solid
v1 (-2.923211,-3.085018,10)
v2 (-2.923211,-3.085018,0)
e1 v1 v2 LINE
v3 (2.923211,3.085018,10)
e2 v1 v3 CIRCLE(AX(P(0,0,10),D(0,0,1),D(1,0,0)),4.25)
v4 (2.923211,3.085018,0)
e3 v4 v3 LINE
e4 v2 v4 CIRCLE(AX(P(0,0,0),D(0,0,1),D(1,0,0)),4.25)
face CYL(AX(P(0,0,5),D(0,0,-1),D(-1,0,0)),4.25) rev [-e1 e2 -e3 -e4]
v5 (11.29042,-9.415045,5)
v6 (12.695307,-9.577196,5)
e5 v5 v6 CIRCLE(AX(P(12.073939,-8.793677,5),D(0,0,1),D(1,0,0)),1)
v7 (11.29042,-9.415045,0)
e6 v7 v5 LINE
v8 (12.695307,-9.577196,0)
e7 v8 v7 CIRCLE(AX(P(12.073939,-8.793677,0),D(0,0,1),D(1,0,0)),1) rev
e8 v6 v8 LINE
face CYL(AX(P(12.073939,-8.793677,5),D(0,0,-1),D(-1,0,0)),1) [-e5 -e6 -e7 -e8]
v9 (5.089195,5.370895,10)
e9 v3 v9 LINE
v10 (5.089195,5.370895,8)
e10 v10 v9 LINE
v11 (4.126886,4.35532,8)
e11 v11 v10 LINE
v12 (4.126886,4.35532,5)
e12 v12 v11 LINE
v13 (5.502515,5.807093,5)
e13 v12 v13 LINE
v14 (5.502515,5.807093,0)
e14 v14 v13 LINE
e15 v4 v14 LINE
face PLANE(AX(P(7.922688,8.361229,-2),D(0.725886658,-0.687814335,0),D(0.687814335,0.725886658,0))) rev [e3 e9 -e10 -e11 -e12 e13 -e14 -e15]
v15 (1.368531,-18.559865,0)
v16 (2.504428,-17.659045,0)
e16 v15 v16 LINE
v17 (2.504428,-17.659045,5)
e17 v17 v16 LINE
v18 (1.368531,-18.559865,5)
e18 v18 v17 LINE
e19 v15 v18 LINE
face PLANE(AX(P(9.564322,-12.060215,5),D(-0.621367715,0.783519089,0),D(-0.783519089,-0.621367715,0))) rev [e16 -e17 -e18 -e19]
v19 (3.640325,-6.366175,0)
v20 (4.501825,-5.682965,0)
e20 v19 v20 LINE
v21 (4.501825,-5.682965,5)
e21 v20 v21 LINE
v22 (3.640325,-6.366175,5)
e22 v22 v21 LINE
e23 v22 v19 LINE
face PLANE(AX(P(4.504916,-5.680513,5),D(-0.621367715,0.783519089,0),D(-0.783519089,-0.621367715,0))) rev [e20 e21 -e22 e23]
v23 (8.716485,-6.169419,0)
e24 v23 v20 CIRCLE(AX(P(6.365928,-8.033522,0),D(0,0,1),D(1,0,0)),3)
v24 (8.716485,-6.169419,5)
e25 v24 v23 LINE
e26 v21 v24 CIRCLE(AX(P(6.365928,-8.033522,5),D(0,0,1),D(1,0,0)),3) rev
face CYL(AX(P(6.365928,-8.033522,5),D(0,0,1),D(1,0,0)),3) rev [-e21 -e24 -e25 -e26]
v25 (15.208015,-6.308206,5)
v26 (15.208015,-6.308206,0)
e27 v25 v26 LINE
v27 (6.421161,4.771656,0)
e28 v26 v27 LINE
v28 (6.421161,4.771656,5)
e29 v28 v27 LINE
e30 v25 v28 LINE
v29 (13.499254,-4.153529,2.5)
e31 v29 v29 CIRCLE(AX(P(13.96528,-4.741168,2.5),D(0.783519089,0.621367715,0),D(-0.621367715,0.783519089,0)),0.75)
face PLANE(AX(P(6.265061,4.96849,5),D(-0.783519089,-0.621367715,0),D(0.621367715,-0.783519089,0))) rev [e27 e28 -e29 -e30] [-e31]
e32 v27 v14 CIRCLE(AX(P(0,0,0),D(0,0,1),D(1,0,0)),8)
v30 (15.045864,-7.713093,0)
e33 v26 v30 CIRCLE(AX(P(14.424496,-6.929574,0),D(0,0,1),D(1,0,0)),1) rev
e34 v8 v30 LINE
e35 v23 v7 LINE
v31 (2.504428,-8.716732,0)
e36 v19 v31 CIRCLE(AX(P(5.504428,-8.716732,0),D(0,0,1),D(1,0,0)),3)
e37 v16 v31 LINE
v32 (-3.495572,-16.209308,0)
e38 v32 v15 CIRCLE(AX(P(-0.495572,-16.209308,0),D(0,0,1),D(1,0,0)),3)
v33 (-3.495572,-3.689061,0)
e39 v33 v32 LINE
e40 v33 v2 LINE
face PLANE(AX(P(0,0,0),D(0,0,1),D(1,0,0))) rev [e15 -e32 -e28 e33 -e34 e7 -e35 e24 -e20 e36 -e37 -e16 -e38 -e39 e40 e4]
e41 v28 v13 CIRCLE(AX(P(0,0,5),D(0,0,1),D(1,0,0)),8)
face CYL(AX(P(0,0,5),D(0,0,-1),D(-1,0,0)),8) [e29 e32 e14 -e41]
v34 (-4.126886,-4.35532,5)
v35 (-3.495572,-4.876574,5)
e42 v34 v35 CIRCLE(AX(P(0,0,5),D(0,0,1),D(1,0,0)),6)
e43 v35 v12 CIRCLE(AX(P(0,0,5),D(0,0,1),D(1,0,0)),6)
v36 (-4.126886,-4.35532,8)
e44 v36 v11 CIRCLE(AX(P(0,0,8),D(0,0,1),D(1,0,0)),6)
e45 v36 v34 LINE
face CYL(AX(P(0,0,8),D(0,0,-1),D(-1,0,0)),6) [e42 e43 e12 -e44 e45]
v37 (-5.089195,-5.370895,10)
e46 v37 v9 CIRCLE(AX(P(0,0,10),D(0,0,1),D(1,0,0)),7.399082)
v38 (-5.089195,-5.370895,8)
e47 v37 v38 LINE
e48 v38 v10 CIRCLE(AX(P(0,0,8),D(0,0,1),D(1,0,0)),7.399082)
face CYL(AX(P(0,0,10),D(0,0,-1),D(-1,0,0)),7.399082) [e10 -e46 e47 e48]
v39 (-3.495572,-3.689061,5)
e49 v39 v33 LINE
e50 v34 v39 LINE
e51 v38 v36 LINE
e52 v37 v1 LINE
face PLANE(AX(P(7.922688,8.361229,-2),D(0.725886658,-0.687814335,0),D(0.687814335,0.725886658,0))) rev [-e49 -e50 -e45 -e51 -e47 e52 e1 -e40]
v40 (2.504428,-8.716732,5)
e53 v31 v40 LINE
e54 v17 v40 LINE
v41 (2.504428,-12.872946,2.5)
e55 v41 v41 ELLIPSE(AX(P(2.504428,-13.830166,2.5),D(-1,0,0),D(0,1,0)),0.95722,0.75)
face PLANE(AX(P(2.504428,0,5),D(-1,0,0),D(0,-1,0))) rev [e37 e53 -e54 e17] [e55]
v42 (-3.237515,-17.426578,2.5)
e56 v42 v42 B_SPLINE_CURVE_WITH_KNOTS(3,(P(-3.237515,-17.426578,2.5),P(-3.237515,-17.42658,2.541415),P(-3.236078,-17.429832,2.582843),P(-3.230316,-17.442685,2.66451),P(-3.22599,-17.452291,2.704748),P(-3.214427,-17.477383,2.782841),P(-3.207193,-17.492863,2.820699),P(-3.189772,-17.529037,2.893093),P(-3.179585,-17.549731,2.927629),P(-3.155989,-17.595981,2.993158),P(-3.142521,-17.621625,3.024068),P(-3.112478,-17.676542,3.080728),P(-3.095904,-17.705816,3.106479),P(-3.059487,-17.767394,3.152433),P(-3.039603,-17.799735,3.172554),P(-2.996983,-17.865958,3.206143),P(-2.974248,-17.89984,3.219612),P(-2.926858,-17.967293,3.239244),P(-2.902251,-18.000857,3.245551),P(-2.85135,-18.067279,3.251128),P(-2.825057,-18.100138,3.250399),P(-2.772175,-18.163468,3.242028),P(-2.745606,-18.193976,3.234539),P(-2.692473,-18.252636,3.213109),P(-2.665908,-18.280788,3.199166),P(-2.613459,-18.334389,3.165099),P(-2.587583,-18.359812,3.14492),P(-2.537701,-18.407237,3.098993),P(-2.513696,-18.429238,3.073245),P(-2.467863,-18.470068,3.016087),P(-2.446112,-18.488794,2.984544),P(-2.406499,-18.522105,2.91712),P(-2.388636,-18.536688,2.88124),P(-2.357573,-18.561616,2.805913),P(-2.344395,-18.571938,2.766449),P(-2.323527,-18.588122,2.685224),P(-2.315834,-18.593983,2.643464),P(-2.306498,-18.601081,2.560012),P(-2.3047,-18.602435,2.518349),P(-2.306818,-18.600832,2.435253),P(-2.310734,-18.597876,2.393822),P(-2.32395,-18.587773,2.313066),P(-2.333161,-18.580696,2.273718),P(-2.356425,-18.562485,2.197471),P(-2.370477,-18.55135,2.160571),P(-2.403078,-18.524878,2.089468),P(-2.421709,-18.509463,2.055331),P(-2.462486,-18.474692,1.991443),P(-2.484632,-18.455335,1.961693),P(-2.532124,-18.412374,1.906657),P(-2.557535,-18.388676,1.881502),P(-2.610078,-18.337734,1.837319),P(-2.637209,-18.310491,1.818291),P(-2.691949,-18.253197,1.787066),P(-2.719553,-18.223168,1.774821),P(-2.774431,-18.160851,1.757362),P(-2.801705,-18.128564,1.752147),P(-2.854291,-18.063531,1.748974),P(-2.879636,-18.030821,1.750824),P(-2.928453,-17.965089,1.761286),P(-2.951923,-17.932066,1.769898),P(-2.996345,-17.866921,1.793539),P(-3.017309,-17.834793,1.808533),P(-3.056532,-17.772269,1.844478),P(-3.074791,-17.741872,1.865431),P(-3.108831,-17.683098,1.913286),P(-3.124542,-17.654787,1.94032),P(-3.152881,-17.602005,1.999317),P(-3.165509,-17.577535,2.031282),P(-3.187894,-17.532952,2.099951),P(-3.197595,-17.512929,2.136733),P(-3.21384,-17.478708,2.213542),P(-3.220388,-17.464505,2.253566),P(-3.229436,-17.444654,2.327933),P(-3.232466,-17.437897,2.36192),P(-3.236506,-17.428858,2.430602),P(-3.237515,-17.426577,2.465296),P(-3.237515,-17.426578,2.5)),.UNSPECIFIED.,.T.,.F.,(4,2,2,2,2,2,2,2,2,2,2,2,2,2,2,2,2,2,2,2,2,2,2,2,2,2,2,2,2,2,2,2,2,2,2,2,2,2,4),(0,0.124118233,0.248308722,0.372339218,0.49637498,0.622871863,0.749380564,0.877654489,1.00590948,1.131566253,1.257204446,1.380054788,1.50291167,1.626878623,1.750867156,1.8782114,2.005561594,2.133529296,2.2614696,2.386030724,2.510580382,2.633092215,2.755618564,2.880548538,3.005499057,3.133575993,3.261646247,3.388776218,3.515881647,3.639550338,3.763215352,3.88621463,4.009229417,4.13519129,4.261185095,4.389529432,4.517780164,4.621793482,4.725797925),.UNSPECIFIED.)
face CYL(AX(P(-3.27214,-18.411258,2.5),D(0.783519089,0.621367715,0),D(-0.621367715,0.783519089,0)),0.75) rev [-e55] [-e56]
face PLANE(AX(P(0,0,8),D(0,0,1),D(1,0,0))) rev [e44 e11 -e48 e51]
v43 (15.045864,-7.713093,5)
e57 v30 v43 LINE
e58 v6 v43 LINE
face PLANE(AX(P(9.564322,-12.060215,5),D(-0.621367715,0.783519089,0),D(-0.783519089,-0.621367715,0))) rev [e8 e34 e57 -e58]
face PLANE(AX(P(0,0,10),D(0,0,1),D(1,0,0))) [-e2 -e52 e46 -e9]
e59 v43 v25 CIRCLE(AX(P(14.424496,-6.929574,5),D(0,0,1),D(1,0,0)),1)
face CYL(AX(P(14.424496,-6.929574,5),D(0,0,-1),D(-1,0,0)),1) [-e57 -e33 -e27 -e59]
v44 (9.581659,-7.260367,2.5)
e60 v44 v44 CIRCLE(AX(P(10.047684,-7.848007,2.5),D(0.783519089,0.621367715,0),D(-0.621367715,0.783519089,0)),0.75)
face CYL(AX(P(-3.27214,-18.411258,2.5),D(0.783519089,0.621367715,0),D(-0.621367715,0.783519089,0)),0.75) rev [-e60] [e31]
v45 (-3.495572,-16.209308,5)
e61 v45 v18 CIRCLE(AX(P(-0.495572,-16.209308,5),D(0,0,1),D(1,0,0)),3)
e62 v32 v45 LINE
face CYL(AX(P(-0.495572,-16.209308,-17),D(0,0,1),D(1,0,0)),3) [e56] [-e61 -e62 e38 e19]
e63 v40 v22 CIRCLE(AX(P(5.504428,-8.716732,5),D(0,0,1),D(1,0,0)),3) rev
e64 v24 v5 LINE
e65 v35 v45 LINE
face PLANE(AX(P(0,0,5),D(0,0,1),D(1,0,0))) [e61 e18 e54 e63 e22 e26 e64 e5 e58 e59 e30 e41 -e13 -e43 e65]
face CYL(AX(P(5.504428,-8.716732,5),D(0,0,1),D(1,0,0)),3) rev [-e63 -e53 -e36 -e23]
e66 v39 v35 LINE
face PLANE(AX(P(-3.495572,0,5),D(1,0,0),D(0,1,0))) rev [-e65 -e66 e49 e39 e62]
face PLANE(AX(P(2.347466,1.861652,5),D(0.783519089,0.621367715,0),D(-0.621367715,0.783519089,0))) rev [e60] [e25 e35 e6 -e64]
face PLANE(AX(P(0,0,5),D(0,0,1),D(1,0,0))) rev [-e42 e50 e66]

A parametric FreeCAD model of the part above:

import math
import FreeCAD as App
import Part
import Sketcher


def edges_at(feature, points):
    """Names of the edges that pass closest to the given points."""
    edges = feature.Shape.Edges
    near = lambda p: min(range(len(edges)), key=lambda i: edges[i].distToShape(Part.Vertex(*p))[0])
    return sorted({f"Edge{near(p) + 1}" for p in points})


def add_polygon(sketch, points):
    """Adds a closed chain of lines whose ends are joined by coincident constraints."""
    first, n = sketch.GeometryCount, len(points)
    for a, b in zip(points, points[1:] + points[:1]):
        sketch.addGeometry(Part.LineSegment(App.Vector(*a, 0), App.Vector(*b, 0)), False)
    for i in range(n):
        sketch.addConstraint(Sketcher.Constraint("Coincident", first + i, 2, first + (i + 1) % n, 1))

doc = App.newDocument("Part")
body = doc.addObject("PartDesign::Body", "Body")

# Sketch on XY plane
sketch1 = body.newObject("Sketcher::SketchObject", "Sketch")
sketch1.AttachmentSupport = (doc.getObject("XY_Plane"), [""])
sketch1.MapMode = "FlatFace"
sketch1.addGeometry(Part.ArcOfCircle(Part.Circle(App.Vector(0, 0, 0), App.Vector(0, 0, 1), 4.2), math.radians(-145), math.radians(0)), False)
sketch1.addGeometry(Part.LineSegment(App.Vector(-3.5, -2.4, 0), App.Vector(-3.5, -22.4, 0)), False)
sketch1.addGeometry(Part.LineSegment(App.Vector(-3.5, -22.4, 0), App.Vector(2.5, -17.7, 0)), False)
sketch1.addGeometry(Part.LineSegment(App.Vector(2.5, -17.7, 0), App.Vector(2.5, -7.3, 0)), False)
sketch1.addGeometry(Part.LineSegment(App.Vector(2.5, -7.3, 0), App.Vector(6.9, -3.8, 0)), False)
sketch1.addGeometry(Part.LineSegment(App.Vector(6.9, -3.8, 0), App.Vector(11.9, -10.2, 0)), False)
sketch1.addGeometry(Part.LineSegment(App.Vector(11.9, -10.2, 0), App.Vector(15.8, -7.1, 0)), False)
sketch1.addGeometry(Part.LineSegment(App.Vector(15.8, -7.1, 0), App.Vector(6.4, 4.8, 0)), False)
sketch1.addGeometry(Part.ArcOfCircle(Part.Circle(App.Vector(0, 0, 0), App.Vector(0, 0, 1), 8), math.radians(36.62), math.radians(51.55)), False)
sketch1.addGeometry(Part.LineSegment(App.Vector(5, 6.3, 0), App.Vector(1.7, 3.9, 0)), False)
sketch1.addGeometry(Part.ArcOfCircle(Part.Circle(App.Vector(0, 0, 0), App.Vector(0, 0, 1), 4.2), math.radians(0), math.radians(67)), False)
sketch1.addConstraint(Sketcher.Constraint("Coincident", 0, 1, 1, 1))
sketch1.addConstraint(Sketcher.Constraint("Coincident", 1, 2, 2, 1))
sketch1.addConstraint(Sketcher.Constraint("Coincident", 2, 2, 3, 1))
sketch1.addConstraint(Sketcher.Constraint("Coincident", 3, 2, 4, 1))
sketch1.addConstraint(Sketcher.Constraint("Coincident", 4, 2, 5, 1))
sketch1.addConstraint(Sketcher.Constraint("Coincident", 5, 2, 6, 1))
sketch1.addConstraint(Sketcher.Constraint("Coincident", 6, 2, 7, 1))
sketch1.addConstraint(Sketcher.Constraint("Coincident", 7, 2, 8, 1))
sketch1.addConstraint(Sketcher.Constraint("Coincident", 8, 2, 9, 1))
sketch1.addConstraint(Sketcher.Constraint("Coincident", 9, 2, 10, 2))
sketch1.addConstraint(Sketcher.Constraint("Tangent", 10, 1, 0, 2))
sketch1.addConstraint(Sketcher.Constraint("Vertical", 1))
sketch1.addConstraint(Sketcher.Constraint("Vertical", 3))
sketch1.addConstraint(Sketcher.Constraint("Coincident", 0, 3, -1, 1))
sketch1.addConstraint(Sketcher.Constraint("Coincident", 8, 3, -1, 1))
sketch1.addConstraint(Sketcher.Constraint("Equal", 0, 10))
sketch1.addConstraint(Sketcher.Constraint("PointOnObject", 10, 1, -1))
sketch1.addConstraint(Sketcher.Constraint("Parallel", 2, 4))
sketch1.addConstraint(Sketcher.Constraint("Perpendicular", 4, 5))
sketch1.addConstraint(Sketcher.Constraint("Perpendicular", 5, 6))
sketch1.addConstraint(Sketcher.Constraint("Perpendicular", 6, 7))
sketch1.addConstraint(Sketcher.Constraint("Radius", 8, 8.0))
sketch1.addConstraint(Sketcher.Constraint("DistanceY", 1, 2, 1, 1, 20.0))
sketch1.addConstraint(Sketcher.Constraint("Radius", 0, 4.25))
sketch1.addConstraint(Sketcher.Constraint("Distance", 6, 5.0))
sketch1.addConstraint(Sketcher.Constraint("DistanceX", 1, 2, 2, 2, 6.0))
sketch1.addConstraint(Sketcher.Constraint("DistanceX", 4, 2, 6, 2, 8.977001))
sketch1.addConstraint(Sketcher.Constraint("DistanceY", 3, 1, 3, 2, 10.39205))
sketch1.addConstraint(Sketcher.Constraint("DistanceY", 7, 2, 8, 2, 1.493598))
sketch1.addConstraint(Sketcher.Constraint("DistanceX", 9, 2, 7, 2, 4.760802))
sketch1.addConstraint(Sketcher.Constraint("Distance", 2, 7.657759))
sketch1.addConstraint(Sketcher.Constraint("Distance", 7, 15.141151))
sketch1.addConstraint(Sketcher.Constraint("DistanceX", 0, 1, -1, 1, 3.495572))
pad1 = body.newObject("PartDesign::Pad", "Pad")
pad1.Profile = sketch1
pad1.Length = 5

# Sketch on XY plane
sketch2 = body.newObject("Sketcher::SketchObject", "Sketch001")
sketch2.AttachmentSupport = (doc.getObject("XY_Plane"), [""])
sketch2.MapMode = "FlatFace"
sketch2.AttachmentOffset = App.Placement(App.Vector(0, 0, 5), App.Rotation())
sketch2.addGeometry(Part.Circle(App.Vector(0, 0, 0), App.Vector(0, 0, 1), 6), False)
sketch2.addGeometry(Part.Circle(App.Vector(0, 0, 0), App.Vector(0, 0, 1), 4.2), False)
sketch2.addConstraint(Sketcher.Constraint("Coincident", 0, 3, -1, 1))
sketch2.addConstraint(Sketcher.Constraint("Coincident", 1, 3, -1, 1))
sketch2.addConstraint(Sketcher.Constraint("Diameter", 0, 12.0))
sketch2.addConstraint(Sketcher.Constraint("Diameter", 1, 8.5))
pad2 = body.newObject("PartDesign::Pad", "Pad001")
pad2.Profile = sketch2
pad2.Length = 3

# Sketch on XY plane
sketch3 = body.newObject("Sketcher::SketchObject", "Sketch002")
sketch3.AttachmentSupport = (doc.getObject("XY_Plane"), [""])
sketch3.MapMode = "FlatFace"
sketch3.AttachmentOffset = App.Placement(App.Vector(0, 0, 8), App.Rotation())
sketch3.addGeometry(Part.Circle(App.Vector(0, 0, 0), App.Vector(0, 0, 1), 7.4), False)
sketch3.addGeometry(Part.Circle(App.Vector(0, 0, 0), App.Vector(0, 0, 1), 4.2), False)
sketch3.addConstraint(Sketcher.Constraint("Coincident", 0, 3, -1, 1))
sketch3.addConstraint(Sketcher.Constraint("Coincident", 1, 3, -1, 1))
sketch3.addConstraint(Sketcher.Constraint("Diameter", 1, 8.5))
sketch3.addConstraint(Sketcher.Constraint("Diameter", 0, 14.798164))
pad3 = body.newObject("PartDesign::Pad", "Pad002")
pad3.Profile = sketch3
pad3.Length = 2

# Sketch on XY plane
sketch4 = body.newObject("Sketcher::SketchObject", "Sketch003")
sketch4.AttachmentSupport = (doc.getObject("XY_Plane"), [""])
sketch4.MapMode = "FlatFace"
sketch4.AttachmentOffset = App.Placement(App.Vector(0, 0, 10), App.Rotation())
add_polygon(sketch4, [(-7, -7), (8, 8), (-17, 8)])  # lines 0-2
sketch4.addConstraint(Sketcher.Constraint("DistanceY", -1, 1, 0, 2, 8.361229))
sketch4.addConstraint(Sketcher.Constraint("DistanceX", 1, 2, -1, 1, 16.647651))
sketch4.addConstraint(Sketcher.Constraint("DistanceY", -1, 1, 1, 2, 7.717248))
sketch4.addConstraint(Sketcher.Constraint("DistanceX", 2, 2, -1, 1, 6.923829))
sketch4.addConstraint(Sketcher.Constraint("DistanceY", 2, 2, -1, 1, 7.307081))
sketch4.addConstraint(Sketcher.Constraint("DistanceX", 1, 2, 0, 2, 24.570339))
pocket1 = body.newObject("PartDesign::Pocket", "Pocket")
pocket1.Profile = sketch4
pocket1.Length = 12

# Sketch on an angled plane
sketch5 = body.newObject("Sketcher::SketchObject", "Sketch004")
sketch5.Placement = App.Placement(App.Vector(6.265061, 4.96849, 0), App.Rotation(App.Vector(0, 0, -1), App.Vector(-0.621367715, 0.783519089, 0), App.Vector(0.783519089, 0.621367715, 0), "ZXY"))
sketch5.addGeometry(Part.Circle(App.Vector(-2.5, -12.4, 0), App.Vector(0, 0, 1), 0.8), False)
sketch5.addConstraint(Sketcher.Constraint("Diameter", 0, 1.5))
sketch5.addConstraint(Sketcher.Constraint("DistanceX", 0, 3, -1, 1, 2.5))
sketch5.addConstraint(Sketcher.Constraint("DistanceY", 0, 3, -1, 1, 12.39237))
pocket2 = body.newObject("PartDesign::Pocket", "Pocket001")
pocket2.Profile = sketch5
pocket2.Length = 22

# Sketch on XY plane
sketch6 = body.newObject("Sketcher::SketchObject", "Sketch005")
sketch6.AttachmentSupport = (doc.getObject("XY_Plane"), [""])
sketch6.MapMode = "FlatFace"
sketch6.AttachmentOffset = App.Placement(App.Vector(0, 0, 5), App.Rotation())
sketch6.addGeometry(Part.LineSegment(App.Vector(-3.5, -22.4, 0), App.Vector(1.4, -18.6, 0)), False)
sketch6.addGeometry(Part.ArcOfCircle(Part.Circle(App.Vector(-0.5, -16.2, 0), App.Vector(0, 0, 1), 3), math.radians(180), math.radians(308)), False)
sketch6.addGeometry(Part.LineSegment(App.Vector(-3.5, -16.2, 0), App.Vector(-3.5, -22.4, 0)), False)
sketch6.addConstraint(Sketcher.Constraint("Tangent", 0, 2, 1, 2))
sketch6.addConstraint(Sketcher.Constraint("Tangent", 1, 1, 2, 1))
sketch6.addConstraint(Sketcher.Constraint("Coincident", 2, 2, 0, 1))
sketch6.addConstraint(Sketcher.Constraint("Vertical", 2))
sketch6.addConstraint(Sketcher.Constraint("Radius", 1, 3.0))
sketch6.addConstraint(Sketcher.Constraint("DistanceY", 2, 2, 2, 1, 6.208021))
sketch6.addConstraint(Sketcher.Constraint("DistanceX", 1, 3, -1, 1, 0.495572))
sketch6.addConstraint(Sketcher.Constraint("DistanceY", 2, 2, -1, 1, 22.417329))
pocket3 = body.newObject("PartDesign::Pocket", "Pocket002")
pocket3.Profile = sketch6
pocket3.Length = 22
doc.recompute()

fillet = body.newObject("PartDesign::Fillet", "Fillet")
fillet.Base = (pocket3, edges_at(pocket3, [(6.852, -3.819, 2.5), (2.504, -7.267, 2.5)]))
fillet.Radius = 3
doc.recompute()

fillet2 = body.newObject("PartDesign::Fillet", "Fillet001")
fillet2.Base = (fillet, edges_at(fillet, [(15.829, -7.092, 2.5), (11.912, -10.199, 2.5)]))
fillet2.Radius = 1

doc.recompute()
